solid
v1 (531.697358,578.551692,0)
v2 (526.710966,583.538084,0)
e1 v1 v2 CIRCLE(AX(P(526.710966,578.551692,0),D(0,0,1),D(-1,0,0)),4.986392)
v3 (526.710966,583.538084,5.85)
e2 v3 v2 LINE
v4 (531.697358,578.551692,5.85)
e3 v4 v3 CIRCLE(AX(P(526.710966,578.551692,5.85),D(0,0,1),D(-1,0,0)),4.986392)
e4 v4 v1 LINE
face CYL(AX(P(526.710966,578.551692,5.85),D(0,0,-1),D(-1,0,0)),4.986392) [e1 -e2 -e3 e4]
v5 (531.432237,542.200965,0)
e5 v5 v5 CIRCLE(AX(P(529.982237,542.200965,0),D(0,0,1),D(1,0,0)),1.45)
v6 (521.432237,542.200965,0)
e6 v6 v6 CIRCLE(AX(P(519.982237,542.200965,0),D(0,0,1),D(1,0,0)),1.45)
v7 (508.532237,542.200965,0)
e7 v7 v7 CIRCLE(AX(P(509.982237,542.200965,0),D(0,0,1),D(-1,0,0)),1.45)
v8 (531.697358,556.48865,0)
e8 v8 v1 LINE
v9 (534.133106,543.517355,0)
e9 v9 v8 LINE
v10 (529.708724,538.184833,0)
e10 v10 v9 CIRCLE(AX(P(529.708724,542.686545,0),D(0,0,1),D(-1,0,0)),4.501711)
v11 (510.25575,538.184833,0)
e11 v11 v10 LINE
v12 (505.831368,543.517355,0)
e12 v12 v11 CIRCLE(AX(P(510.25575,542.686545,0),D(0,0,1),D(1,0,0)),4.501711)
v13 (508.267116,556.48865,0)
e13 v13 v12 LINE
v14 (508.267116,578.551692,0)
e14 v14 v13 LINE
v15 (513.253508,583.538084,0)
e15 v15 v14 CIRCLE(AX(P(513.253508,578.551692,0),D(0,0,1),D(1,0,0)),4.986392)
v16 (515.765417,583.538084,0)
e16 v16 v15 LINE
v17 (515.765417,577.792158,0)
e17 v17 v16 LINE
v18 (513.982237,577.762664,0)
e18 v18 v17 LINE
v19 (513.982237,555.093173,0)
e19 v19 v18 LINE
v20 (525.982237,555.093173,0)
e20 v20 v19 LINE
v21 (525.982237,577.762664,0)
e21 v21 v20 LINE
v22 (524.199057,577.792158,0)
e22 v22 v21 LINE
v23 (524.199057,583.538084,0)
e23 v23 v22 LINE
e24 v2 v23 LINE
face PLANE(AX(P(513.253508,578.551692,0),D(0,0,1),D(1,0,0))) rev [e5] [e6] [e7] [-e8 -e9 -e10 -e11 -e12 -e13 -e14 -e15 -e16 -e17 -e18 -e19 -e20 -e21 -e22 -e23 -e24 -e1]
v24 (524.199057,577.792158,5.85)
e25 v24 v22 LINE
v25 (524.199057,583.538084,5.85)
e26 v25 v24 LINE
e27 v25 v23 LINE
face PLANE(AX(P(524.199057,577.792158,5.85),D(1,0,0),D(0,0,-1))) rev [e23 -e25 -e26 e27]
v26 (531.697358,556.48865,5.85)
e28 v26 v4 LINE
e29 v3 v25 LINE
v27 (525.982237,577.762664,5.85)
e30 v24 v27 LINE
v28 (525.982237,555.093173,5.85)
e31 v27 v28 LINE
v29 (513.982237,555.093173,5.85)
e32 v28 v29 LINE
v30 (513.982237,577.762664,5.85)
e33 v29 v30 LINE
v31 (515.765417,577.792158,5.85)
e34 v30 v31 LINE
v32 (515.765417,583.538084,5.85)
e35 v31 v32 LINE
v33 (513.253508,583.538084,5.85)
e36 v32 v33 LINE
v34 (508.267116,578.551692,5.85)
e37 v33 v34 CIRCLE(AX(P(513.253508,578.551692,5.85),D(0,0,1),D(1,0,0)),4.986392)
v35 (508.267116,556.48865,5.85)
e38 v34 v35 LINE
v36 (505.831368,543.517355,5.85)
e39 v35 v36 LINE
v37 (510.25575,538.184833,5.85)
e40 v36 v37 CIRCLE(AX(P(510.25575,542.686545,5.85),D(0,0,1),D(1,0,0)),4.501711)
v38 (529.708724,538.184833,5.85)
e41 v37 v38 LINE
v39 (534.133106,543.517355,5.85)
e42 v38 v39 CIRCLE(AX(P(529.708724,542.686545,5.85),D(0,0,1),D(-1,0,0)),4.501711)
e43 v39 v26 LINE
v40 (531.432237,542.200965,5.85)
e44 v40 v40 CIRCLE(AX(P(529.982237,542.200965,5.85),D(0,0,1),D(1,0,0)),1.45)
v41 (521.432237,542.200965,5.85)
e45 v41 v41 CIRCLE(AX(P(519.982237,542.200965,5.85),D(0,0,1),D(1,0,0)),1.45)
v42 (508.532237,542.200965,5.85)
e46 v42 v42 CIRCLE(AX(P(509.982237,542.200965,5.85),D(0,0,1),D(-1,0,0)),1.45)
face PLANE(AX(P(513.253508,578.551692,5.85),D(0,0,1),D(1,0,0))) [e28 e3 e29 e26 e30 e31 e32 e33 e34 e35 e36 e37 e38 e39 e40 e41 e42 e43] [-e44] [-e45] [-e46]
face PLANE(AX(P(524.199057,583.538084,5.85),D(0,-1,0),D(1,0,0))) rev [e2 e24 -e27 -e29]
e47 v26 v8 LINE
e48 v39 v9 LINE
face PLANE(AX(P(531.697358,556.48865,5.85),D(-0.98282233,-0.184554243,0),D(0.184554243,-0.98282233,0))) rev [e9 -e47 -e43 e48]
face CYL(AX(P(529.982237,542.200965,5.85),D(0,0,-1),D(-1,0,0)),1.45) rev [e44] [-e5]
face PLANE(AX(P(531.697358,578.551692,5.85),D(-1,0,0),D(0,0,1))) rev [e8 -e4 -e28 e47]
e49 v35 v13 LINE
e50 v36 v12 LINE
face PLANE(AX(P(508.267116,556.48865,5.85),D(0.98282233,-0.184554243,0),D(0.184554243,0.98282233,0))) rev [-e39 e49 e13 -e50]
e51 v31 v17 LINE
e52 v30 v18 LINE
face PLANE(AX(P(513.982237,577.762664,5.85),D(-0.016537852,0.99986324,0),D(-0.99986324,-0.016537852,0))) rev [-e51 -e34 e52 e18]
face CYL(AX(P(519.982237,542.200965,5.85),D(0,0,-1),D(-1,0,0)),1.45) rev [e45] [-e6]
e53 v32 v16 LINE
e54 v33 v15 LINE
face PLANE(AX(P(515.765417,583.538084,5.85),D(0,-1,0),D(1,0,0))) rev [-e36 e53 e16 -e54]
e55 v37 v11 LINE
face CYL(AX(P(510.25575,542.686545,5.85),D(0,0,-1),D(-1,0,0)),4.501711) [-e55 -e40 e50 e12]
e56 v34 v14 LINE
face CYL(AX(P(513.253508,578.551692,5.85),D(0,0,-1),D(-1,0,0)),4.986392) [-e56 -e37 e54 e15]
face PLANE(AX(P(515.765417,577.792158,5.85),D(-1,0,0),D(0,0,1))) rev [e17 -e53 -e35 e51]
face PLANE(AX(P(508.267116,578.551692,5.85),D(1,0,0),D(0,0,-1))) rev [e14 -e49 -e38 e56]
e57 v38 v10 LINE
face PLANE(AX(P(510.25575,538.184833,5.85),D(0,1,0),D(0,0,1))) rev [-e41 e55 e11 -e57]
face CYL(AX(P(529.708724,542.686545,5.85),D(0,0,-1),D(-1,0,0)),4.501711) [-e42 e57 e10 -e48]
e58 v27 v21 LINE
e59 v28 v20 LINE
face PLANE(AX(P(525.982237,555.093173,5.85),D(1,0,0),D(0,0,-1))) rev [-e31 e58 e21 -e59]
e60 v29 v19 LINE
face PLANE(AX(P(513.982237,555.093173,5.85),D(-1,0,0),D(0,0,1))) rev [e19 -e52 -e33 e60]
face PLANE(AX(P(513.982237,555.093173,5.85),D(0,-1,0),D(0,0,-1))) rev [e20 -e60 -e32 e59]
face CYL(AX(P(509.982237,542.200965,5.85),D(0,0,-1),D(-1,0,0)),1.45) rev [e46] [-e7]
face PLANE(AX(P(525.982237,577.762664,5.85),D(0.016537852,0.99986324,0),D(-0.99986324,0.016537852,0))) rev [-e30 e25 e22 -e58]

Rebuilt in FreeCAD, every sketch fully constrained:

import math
import FreeCAD as App
import Part
import Sketcher
from FreeCAD import Vector
Q = App.Units.Quantity

doc = App.newDocument("Part")
params = doc.addObject("Spreadsheet::Sheet", "Params")
for row, (alias, value) in enumerate([
    ("sketch1_diameter", "2.9 mm"),
    ("sketch1_width", "12 mm"),
    ("pad1_length", "5.85 mm"),
], start=1):
    params.set(f"A{row}", alias)
    params.set(f"B{row}", "=" + value)
    params.setAlias(f"B{row}", alias)

body = doc.addObject("PartDesign::Body", "Body")

sketch1 = doc.addObject("Sketcher::SketchObject", "Sketch")
body.addObject(sketch1)
sketch1.AttachmentSupport = (doc.XY_Plane, [""])
sketch1.MapMode = "FlatFace"
sketch1.addGeometry(Part.LineSegment(Vector(508.267116, 556.48865, 0), Vector(505.831368, 543.517355, 0)), False)
sketch1.addGeometry(Part.ArcOfCircle(Part.Circle(Vector(510.25575, 542.686545, 0), Vector(0, 0, 1), 4.501711), math.radians(169.364855), math.radians(270)), False)
sketch1.addGeometry(Part.LineSegment(Vector(510.25575, 538.184833, 0), Vector(529.708724, 538.184833, 0)), False)
sketch1.addGeometry(Part.ArcOfCircle(Part.Circle(Vector(529.708724, 542.686545, 0), Vector(0, 0, 1), 4.501711), math.radians(-90), math.radians(10.635145)), False)
sketch1.addGeometry(Part.LineSegment(Vector(534.133106, 543.517355, 0), Vector(531.697358, 556.48865, 0)), False)
sketch1.addGeometry(Part.LineSegment(Vector(531.697358, 556.48865, 0), Vector(531.697358, 578.551692, 0)), False)
sketch1.addGeometry(Part.ArcOfCircle(Part.Circle(Vector(526.710966, 578.551692, 0), Vector(0, 0, 1), 4.986392), math.radians(0), math.radians(90)), False)
sketch1.addGeometry(Part.LineSegment(Vector(526.710966, 583.538084, 0), Vector(524.199057, 583.538084, 0)), False)
sketch1.addGeometry(Part.LineSegment(Vector(524.199057, 583.538084, 0), Vector(524.199057, 577.792158, 0)), False)
sketch1.addGeometry(Part.LineSegment(Vector(524.199057, 577.792158, 0), Vector(525.982237, 577.762664, 0)), False)
sketch1.addGeometry(Part.LineSegment(Vector(525.982237, 577.762664, 0), Vector(525.982237, 555.093173, 0)), False)
sketch1.addGeometry(Part.LineSegment(Vector(525.982237, 555.093173, 0), Vector(513.982237, 555.093173, 0)), False)
sketch1.addGeometry(Part.LineSegment(Vector(513.982237, 555.093173, 0), Vector(513.982237, 577.762664, 0)), False)
sketch1.addGeometry(Part.LineSegment(Vector(513.982237, 577.762664, 0), Vector(515.765417, 577.792158, 0)), False)
sketch1.addGeometry(Part.LineSegment(Vector(515.765417, 577.792158, 0), Vector(515.765417, 583.538084, 0)), False)
sketch1.addGeometry(Part.LineSegment(Vector(515.765417, 583.538084, 0), Vector(513.253508, 583.538084, 0)), False)
sketch1.addGeometry(Part.ArcOfCircle(Part.Circle(Vector(513.253508, 578.551692, 0), Vector(0, 0, 1), 4.986392), math.radians(90), math.radians(180)), False)
sketch1.addGeometry(Part.LineSegment(Vector(508.267116, 578.551692, 0), Vector(508.267116, 556.48865, 0)), False)
sketch1.addGeometry(Part.Circle(Vector(509.982237, 542.200965, 0), Vector(0, 0, 1), 1.45), False)
sketch1.addGeometry(Part.Circle(Vector(519.982237, 542.200965, 0), Vector(0, 0, 1), 1.45), False)
sketch1.addGeometry(Part.Circle(Vector(529.982237, 542.200965, 0), Vector(0, 0, 1), 1.45), False)
sketch1.addConstraint(Sketcher.Constraint("Tangent", 0, 2, 1, 1))
sketch1.addConstraint(Sketcher.Constraint("Tangent", 1, 2, 2, 1))
sketch1.addConstraint(Sketcher.Constraint("Tangent", 2, 2, 3, 1))
sketch1.addConstraint(Sketcher.Constraint("Tangent", 3, 2, 4, 1))
sketch1.addConstraint(Sketcher.Constraint("Coincident", 4, 2, 5, 1))
sketch1.addConstraint(Sketcher.Constraint("Tangent", 5, 2, 6, 1))
sketch1.addConstraint(Sketcher.Constraint("Tangent", 6, 2, 7, 1))
sketch1.addConstraint(Sketcher.Constraint("Coincident", 7, 2, 8, 1))
sketch1.addConstraint(Sketcher.Constraint("Coincident", 8, 2, 9, 1))
sketch1.addConstraint(Sketcher.Constraint("Coincident", 9, 2, 10, 1))
sketch1.addConstraint(Sketcher.Constraint("Coincident", 10, 2, 11, 1))
sketch1.addConstraint(Sketcher.Constraint("Coincident", 11, 2, 12, 1))
sketch1.addConstraint(Sketcher.Constraint("Coincident", 12, 2, 13, 1))
sketch1.addConstraint(Sketcher.Constraint("Coincident", 13, 2, 14, 1))
sketch1.addConstraint(Sketcher.Constraint("Coincident", 14, 2, 15, 1))
sketch1.addConstraint(Sketcher.Constraint("Tangent", 15, 2, 16, 1))
sketch1.addConstraint(Sketcher.Constraint("Tangent", 16, 2, 17, 1))
sketch1.addConstraint(Sketcher.Constraint("Coincident", 17, 2, 0, 1))
sketch1.addConstraint(Sketcher.Constraint("Horizontal", 2))
sketch1.addConstraint(Sketcher.Constraint("Vertical", 5))
sketch1.addConstraint(Sketcher.Constraint("Horizontal", 7))
sketch1.addConstraint(Sketcher.Constraint("Vertical", 8))
sketch1.addConstraint(Sketcher.Constraint("Vertical", 10))
sketch1.addConstraint(Sketcher.Constraint("Horizontal", 11))
sketch1.addConstraint(Sketcher.Constraint("Vertical", 12))
sketch1.addConstraint(Sketcher.Constraint("Vertical", 14))
sketch1.addConstraint(Sketcher.Constraint("Horizontal", 15))
sketch1.addConstraint(Sketcher.Constraint("Vertical", 17))
sketch1.addConstraint(Sketcher.Constraint("Equal", 1, 3))
sketch1.addConstraint(Sketcher.Constraint("Equal", 6, 16))
sketch1.addConstraint(Sketcher.Constraint("Equal", 18, 19))
sketch1.addConstraint(Sketcher.Constraint("Equal", 19, 20))
sketch1.addConstraint(Sketcher.Constraint("Horizontal", 6, 3, 16, 3))
sketch1.addConstraint(Sketcher.Constraint("Horizontal", 18, 3, 19, 3))
sketch1.addConstraint(Sketcher.Constraint("Horizontal", 19, 3, 20, 3))
sketch1.addConstraint(Sketcher.Constraint("Horizontal", 0, 2, 3, 2))
sketch1.addConstraint(Sketcher.Constraint("Horizontal", 9, 2, 12, 2))
sketch1.addConstraint(Sketcher.Constraint("Horizontal", 8, 2, 13, 2))
sketch1.addConstraint(Sketcher.Constraint("Horizontal", 4, 2, 17, 2))
sketch1.addConstraint(Sketcher.Constraint("Equal", 7, 15))
sketch1.addConstraint(Sketcher.Constraint("Equal", 9, 13))
sketch1.addConstraint(Sketcher.Constraint("Diameter", 18, Q("2.9 mm")))
sketch1.addConstraint(Sketcher.Constraint("DistanceX", 11, 2, 11, 1, Q("12 mm")))
sketch1.addConstraint(Sketcher.Constraint("DistanceX", 18, 3, 19, 3, Q("10 mm")))
sketch1.addConstraint(Sketcher.Constraint("DistanceX", 19, 3, 20, 3, Q("10 mm")))
sketch1.addConstraint(Sketcher.Constraint("DistanceX", 10, 2, 20, 3, Q("4 mm")))
sketch1.addConstraint(Sketcher.Constraint("Radius", 1, Q("4.501711 mm")))
sketch1.addConstraint(Sketcher.Constraint("Radius", 6, Q("4.986392 mm")))
sketch1.addConstraint(Sketcher.Constraint("DistanceX", 7, 2, 7, 1, Q("2.511909 mm")))
sketch1.addConstraint(Sketcher.Constraint("DistanceY", 10, 2, 10, 1, Q("22.669491 mm")))
sketch1.addConstraint(Sketcher.Constraint("DistanceX", 2, 1, 2, 2, Q("19.452973 mm")))
sketch1.addConstraint(Sketcher.Constraint("DistanceY", 5, 1, 5, 2, Q("22.063042 mm")))
sketch1.addConstraint(Sketcher.Constraint("DistanceY", 8, 2, 8, 1, Q("5.745926 mm")))
sketch1.addConstraint(Sketcher.Constraint("DistanceX", -1, 1, 1, 3, Q("510.25575 mm")))
sketch1.addConstraint(Sketcher.Constraint("DistanceY", -1, 1, 6, 3, Q("578.551692 mm")))
sketch1.addConstraint(Sketcher.Constraint("DistanceX", -1, 1, 4, 2, Q("531.697358 mm")))
sketch1.addConstraint(Sketcher.Constraint("DistanceY", 18, 3, 1, 3, Q("0.48558 mm")))
sketch1.addConstraint(Sketcher.Constraint("DistanceX", 0, 2, 18, 3, Q("4.150869 mm")))
sketch1.addConstraint(Sketcher.Constraint("DistanceY", 9, 2, 6, 2, Q("5.77542 mm")))
sketch1.setExpression("Constraints[41]", "Params.sketch1_diameter")
sketch1.setExpression("Constraints[42]", "Params.sketch1_width")
pad1 = doc.addObject("PartDesign::Pad", "Pad")
body.addObject(pad1)
pad1.Profile = sketch1
pad1.setExpression("Length", "Params.pad1_length")

doc.recompute()
